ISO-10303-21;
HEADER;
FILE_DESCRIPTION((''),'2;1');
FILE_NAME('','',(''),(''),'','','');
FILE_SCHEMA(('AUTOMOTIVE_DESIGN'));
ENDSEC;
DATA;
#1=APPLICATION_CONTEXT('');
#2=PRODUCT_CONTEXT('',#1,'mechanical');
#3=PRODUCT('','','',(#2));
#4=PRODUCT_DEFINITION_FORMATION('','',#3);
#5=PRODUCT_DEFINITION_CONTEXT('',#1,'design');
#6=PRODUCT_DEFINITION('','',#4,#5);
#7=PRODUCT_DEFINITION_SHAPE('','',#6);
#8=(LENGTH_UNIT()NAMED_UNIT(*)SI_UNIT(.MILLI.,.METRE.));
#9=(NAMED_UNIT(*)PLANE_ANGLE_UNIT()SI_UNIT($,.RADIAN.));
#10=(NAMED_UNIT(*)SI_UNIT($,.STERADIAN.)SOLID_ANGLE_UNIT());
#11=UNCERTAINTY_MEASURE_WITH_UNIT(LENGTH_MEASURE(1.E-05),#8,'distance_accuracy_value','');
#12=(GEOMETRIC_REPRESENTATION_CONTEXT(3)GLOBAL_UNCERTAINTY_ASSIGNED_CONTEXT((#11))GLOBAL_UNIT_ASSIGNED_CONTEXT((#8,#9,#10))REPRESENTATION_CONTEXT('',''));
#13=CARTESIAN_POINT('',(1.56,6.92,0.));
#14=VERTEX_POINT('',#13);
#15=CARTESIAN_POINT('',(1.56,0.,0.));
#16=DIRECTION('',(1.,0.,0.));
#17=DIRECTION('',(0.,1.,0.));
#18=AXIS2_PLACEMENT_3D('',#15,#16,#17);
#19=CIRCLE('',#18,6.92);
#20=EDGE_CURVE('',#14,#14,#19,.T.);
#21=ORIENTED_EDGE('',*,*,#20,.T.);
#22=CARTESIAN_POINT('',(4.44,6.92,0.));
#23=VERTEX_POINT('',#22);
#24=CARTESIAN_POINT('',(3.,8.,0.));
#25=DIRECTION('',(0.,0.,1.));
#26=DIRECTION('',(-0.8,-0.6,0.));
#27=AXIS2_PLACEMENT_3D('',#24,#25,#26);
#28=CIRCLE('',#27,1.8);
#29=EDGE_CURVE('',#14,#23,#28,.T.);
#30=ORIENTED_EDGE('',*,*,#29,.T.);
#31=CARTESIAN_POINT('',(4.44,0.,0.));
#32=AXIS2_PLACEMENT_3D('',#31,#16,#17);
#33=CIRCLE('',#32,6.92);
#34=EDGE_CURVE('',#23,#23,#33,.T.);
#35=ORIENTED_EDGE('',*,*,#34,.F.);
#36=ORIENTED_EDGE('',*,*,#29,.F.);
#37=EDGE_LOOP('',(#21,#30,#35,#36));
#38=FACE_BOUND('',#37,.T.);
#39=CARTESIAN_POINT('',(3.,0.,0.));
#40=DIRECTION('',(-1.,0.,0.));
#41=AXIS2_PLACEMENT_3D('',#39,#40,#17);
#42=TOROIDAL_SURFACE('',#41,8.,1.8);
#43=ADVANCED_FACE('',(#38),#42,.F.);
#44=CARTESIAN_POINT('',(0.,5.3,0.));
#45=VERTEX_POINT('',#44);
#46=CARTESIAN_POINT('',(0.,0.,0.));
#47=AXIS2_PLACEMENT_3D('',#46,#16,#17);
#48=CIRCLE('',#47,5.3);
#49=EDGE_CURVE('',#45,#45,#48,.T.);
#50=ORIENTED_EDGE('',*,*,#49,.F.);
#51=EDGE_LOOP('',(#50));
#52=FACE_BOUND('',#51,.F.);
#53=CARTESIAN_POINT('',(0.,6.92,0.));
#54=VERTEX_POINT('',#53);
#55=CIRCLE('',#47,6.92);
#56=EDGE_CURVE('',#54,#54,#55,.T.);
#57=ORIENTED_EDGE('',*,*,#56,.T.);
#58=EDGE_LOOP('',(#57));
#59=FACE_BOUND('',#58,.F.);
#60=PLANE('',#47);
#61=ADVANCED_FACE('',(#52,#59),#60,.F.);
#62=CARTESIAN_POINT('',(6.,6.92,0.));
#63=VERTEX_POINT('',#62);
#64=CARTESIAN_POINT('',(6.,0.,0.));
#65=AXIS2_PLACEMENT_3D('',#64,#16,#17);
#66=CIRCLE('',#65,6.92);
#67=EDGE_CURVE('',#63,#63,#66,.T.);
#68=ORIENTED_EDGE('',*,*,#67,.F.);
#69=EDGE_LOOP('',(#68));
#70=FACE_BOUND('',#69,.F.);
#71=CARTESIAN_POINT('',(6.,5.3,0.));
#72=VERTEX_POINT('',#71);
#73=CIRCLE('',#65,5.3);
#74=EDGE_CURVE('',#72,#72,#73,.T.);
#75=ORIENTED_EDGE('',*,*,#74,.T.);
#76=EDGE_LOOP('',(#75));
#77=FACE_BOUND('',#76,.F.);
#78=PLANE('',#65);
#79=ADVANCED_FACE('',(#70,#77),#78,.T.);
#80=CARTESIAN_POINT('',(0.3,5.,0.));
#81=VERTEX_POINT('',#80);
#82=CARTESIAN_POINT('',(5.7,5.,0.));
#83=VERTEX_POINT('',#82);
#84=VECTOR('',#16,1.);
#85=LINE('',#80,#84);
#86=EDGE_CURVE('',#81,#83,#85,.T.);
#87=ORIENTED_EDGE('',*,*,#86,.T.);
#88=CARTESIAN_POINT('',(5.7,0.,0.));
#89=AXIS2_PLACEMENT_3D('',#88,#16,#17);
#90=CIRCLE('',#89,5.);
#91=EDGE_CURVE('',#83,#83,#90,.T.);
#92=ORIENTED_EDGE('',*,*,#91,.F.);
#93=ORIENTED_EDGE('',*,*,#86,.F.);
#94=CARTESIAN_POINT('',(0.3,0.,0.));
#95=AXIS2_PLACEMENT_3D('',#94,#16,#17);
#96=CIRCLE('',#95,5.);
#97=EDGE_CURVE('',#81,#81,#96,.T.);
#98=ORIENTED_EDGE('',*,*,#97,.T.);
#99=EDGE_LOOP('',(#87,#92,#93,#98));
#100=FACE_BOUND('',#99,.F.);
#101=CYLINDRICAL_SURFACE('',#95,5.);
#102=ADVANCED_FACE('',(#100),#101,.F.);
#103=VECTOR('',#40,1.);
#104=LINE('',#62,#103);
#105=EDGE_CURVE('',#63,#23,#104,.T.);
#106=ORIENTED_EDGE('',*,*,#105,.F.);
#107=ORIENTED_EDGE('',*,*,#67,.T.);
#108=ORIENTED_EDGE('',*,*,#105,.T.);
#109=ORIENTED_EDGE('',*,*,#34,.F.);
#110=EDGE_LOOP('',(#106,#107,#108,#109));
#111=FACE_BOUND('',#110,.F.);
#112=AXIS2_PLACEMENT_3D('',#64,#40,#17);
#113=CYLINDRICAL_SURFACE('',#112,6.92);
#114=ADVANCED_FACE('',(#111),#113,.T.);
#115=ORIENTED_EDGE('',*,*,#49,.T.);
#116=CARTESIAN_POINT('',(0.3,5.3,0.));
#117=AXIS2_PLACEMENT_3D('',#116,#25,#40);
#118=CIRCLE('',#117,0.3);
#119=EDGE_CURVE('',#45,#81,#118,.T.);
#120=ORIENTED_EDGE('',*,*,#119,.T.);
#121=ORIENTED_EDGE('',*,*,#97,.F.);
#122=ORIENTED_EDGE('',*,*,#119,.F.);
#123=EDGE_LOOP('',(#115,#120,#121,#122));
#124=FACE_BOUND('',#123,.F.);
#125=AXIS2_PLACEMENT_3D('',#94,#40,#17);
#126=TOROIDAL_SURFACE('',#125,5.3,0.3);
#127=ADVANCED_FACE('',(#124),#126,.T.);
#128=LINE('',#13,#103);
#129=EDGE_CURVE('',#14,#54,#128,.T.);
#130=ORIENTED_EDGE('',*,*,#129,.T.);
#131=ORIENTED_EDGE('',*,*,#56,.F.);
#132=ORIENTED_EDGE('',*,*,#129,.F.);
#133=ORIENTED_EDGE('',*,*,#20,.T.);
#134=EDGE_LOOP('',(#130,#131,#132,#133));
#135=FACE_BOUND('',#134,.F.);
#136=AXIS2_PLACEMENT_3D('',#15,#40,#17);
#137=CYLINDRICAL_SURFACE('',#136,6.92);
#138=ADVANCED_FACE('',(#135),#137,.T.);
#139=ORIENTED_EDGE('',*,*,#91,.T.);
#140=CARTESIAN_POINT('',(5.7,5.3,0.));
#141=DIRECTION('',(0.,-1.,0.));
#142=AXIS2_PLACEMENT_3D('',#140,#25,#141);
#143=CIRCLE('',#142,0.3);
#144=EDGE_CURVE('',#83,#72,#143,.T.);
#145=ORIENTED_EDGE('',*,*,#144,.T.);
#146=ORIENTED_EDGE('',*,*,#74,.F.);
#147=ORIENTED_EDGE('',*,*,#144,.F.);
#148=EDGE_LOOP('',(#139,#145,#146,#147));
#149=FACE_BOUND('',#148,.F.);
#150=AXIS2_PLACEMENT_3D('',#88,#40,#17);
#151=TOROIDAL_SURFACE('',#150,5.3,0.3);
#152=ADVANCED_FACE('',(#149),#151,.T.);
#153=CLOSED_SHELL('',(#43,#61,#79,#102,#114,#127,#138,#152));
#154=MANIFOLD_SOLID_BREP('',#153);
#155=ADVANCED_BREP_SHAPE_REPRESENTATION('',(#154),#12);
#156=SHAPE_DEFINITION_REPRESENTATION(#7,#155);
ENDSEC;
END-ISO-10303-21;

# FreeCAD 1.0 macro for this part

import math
import FreeCAD as App
import Part
import Sketcher

doc = App.newDocument("Part")
params = doc.addObject("Spreadsheet::Sheet", "Params")
for row, (alias, value) in enumerate([
    ("sketch1_radius", "0.3 mm"),
    ("sketch1_radius2", "1.8 mm"),
    ("sketch1_width", "5.4 mm"),
    ("sketch1_width2", "1.56 mm"),
    ("revolution_angle", "360 deg"),
], start=1):
    params.set(f"A{row}", alias)
    params.set(f"B{row}", "=" + value)
    params.setAlias(f"B{row}", alias)

body = doc.addObject("PartDesign::Body", "Body")

# Sketch on XY plane
sketch1 = body.newObject("Sketcher::SketchObject", "Sketch")
sketch1.AttachmentSupport = (doc.getObject("XY_Plane"), [""])
sketch1.MapMode = "FlatFace"
sketch1.addGeometry(Part.LineSegment(App.Vector(0, 6.92, 0), App.Vector(0, 5.3, 0)), False)
sketch1.addGeometry(Part.ArcOfCircle(Part.Circle(App.Vector(0.3, 5.3, 0), App.Vector(0, 0, 1), 0.3), math.radians(180), math.radians(270)), False)
sketch1.addGeometry(Part.LineSegment(App.Vector(0.3, 5, 0), App.Vector(5.7, 5, 0)), False)
sketch1.addGeometry(Part.ArcOfCircle(Part.Circle(App.Vector(5.7, 5.3, 0), App.Vector(0, 0, 1), 0.3), math.radians(-90), math.radians(0)), False)
sketch1.addGeometry(Part.LineSegment(App.Vector(6, 5.3, 0), App.Vector(6, 6.92, 0)), False)
sketch1.addGeometry(Part.LineSegment(App.Vector(6, 6.92, 0), App.Vector(4.44, 6.92, 0)), False)
sketch1.addGeometry(Part.ArcOfCircle(Part.Circle(App.Vector(3, 8, 0), App.Vector(0, 0, 1), 1.8), math.radians(-143.130102), math.radians(-36.869898)), False)
sketch1.addGeometry(Part.LineSegment(App.Vector(1.56, 6.92, 0), App.Vector(0, 6.92, 0)), False)
sketch1.addConstraint(Sketcher.Constraint("Tangent", 0, 2, 1, 1))
sketch1.addConstraint(Sketcher.Constraint("Tangent", 1, 2, 2, 1))
sketch1.addConstraint(Sketcher.Constraint("Tangent", 2, 2, 3, 1))
sketch1.addConstraint(Sketcher.Constraint("Tangent", 3, 2, 4, 1))
sketch1.addConstraint(Sketcher.Constraint("Coincident", 4, 2, 5, 1))
sketch1.addConstraint(Sketcher.Constraint("Coincident", 5, 2, 6, 2))
sketch1.addConstraint(Sketcher.Constraint("Coincident", 6, 1, 7, 1))
sketch1.addConstraint(Sketcher.Constraint("Coincident", 7, 2, 0, 1))
sketch1.addConstraint(Sketcher.Constraint("Vertical", 0))
sketch1.addConstraint(Sketcher.Constraint("Horizontal", 2))
sketch1.addConstraint(Sketcher.Constraint("Vertical", 4))
sketch1.addConstraint(Sketcher.Constraint("Horizontal", 5))
sketch1.addConstraint(Sketcher.Constraint("Horizontal", 7))
sketch1.addConstraint(Sketcher.Constraint("Equal", 1, 3))
sketch1.addConstraint(Sketcher.Constraint("PointOnObject", 0, 2, -2))
sketch1.addConstraint(Sketcher.Constraint("Horizontal", 5, 2, 6, 1))
sketch1.addConstraint(Sketcher.Constraint("Equal", 5, 7))
sketch1.addConstraint(Sketcher.Constraint("Radius", 1, 0.3))
sketch1.addConstraint(Sketcher.Constraint("Radius", 6, 1.8))
sketch1.addConstraint(Sketcher.Constraint("DistanceX", 2, 1, 2, 2, 5.4))
sketch1.addConstraint(Sketcher.Constraint("DistanceY", -1, 1, 6, 3, 8.0))
sketch1.addConstraint(Sketcher.Constraint("DistanceY", -1, 1, 1, 2, 5.0))
sketch1.addConstraint(Sketcher.Constraint("DistanceX", 5, 2, 5, 1, 1.56))
sketch1.setExpression("Constraints[17]", "Params.sketch1_radius")
sketch1.setExpression("Constraints[18]", "Params.sketch1_radius2")
sketch1.setExpression("Constraints[19]", "Params.sketch1_width")
sketch1.setExpression("Constraints[22]", "Params.sketch1_width2")
revolution = body.newObject("PartDesign::Revolution", "Revolution")
revolution.Profile = sketch1
revolution.ReferenceAxis = (sketch1, ["H_Axis"])
revolution.setExpression("Angle", "Params.revolution_angle")

doc.recompute()
